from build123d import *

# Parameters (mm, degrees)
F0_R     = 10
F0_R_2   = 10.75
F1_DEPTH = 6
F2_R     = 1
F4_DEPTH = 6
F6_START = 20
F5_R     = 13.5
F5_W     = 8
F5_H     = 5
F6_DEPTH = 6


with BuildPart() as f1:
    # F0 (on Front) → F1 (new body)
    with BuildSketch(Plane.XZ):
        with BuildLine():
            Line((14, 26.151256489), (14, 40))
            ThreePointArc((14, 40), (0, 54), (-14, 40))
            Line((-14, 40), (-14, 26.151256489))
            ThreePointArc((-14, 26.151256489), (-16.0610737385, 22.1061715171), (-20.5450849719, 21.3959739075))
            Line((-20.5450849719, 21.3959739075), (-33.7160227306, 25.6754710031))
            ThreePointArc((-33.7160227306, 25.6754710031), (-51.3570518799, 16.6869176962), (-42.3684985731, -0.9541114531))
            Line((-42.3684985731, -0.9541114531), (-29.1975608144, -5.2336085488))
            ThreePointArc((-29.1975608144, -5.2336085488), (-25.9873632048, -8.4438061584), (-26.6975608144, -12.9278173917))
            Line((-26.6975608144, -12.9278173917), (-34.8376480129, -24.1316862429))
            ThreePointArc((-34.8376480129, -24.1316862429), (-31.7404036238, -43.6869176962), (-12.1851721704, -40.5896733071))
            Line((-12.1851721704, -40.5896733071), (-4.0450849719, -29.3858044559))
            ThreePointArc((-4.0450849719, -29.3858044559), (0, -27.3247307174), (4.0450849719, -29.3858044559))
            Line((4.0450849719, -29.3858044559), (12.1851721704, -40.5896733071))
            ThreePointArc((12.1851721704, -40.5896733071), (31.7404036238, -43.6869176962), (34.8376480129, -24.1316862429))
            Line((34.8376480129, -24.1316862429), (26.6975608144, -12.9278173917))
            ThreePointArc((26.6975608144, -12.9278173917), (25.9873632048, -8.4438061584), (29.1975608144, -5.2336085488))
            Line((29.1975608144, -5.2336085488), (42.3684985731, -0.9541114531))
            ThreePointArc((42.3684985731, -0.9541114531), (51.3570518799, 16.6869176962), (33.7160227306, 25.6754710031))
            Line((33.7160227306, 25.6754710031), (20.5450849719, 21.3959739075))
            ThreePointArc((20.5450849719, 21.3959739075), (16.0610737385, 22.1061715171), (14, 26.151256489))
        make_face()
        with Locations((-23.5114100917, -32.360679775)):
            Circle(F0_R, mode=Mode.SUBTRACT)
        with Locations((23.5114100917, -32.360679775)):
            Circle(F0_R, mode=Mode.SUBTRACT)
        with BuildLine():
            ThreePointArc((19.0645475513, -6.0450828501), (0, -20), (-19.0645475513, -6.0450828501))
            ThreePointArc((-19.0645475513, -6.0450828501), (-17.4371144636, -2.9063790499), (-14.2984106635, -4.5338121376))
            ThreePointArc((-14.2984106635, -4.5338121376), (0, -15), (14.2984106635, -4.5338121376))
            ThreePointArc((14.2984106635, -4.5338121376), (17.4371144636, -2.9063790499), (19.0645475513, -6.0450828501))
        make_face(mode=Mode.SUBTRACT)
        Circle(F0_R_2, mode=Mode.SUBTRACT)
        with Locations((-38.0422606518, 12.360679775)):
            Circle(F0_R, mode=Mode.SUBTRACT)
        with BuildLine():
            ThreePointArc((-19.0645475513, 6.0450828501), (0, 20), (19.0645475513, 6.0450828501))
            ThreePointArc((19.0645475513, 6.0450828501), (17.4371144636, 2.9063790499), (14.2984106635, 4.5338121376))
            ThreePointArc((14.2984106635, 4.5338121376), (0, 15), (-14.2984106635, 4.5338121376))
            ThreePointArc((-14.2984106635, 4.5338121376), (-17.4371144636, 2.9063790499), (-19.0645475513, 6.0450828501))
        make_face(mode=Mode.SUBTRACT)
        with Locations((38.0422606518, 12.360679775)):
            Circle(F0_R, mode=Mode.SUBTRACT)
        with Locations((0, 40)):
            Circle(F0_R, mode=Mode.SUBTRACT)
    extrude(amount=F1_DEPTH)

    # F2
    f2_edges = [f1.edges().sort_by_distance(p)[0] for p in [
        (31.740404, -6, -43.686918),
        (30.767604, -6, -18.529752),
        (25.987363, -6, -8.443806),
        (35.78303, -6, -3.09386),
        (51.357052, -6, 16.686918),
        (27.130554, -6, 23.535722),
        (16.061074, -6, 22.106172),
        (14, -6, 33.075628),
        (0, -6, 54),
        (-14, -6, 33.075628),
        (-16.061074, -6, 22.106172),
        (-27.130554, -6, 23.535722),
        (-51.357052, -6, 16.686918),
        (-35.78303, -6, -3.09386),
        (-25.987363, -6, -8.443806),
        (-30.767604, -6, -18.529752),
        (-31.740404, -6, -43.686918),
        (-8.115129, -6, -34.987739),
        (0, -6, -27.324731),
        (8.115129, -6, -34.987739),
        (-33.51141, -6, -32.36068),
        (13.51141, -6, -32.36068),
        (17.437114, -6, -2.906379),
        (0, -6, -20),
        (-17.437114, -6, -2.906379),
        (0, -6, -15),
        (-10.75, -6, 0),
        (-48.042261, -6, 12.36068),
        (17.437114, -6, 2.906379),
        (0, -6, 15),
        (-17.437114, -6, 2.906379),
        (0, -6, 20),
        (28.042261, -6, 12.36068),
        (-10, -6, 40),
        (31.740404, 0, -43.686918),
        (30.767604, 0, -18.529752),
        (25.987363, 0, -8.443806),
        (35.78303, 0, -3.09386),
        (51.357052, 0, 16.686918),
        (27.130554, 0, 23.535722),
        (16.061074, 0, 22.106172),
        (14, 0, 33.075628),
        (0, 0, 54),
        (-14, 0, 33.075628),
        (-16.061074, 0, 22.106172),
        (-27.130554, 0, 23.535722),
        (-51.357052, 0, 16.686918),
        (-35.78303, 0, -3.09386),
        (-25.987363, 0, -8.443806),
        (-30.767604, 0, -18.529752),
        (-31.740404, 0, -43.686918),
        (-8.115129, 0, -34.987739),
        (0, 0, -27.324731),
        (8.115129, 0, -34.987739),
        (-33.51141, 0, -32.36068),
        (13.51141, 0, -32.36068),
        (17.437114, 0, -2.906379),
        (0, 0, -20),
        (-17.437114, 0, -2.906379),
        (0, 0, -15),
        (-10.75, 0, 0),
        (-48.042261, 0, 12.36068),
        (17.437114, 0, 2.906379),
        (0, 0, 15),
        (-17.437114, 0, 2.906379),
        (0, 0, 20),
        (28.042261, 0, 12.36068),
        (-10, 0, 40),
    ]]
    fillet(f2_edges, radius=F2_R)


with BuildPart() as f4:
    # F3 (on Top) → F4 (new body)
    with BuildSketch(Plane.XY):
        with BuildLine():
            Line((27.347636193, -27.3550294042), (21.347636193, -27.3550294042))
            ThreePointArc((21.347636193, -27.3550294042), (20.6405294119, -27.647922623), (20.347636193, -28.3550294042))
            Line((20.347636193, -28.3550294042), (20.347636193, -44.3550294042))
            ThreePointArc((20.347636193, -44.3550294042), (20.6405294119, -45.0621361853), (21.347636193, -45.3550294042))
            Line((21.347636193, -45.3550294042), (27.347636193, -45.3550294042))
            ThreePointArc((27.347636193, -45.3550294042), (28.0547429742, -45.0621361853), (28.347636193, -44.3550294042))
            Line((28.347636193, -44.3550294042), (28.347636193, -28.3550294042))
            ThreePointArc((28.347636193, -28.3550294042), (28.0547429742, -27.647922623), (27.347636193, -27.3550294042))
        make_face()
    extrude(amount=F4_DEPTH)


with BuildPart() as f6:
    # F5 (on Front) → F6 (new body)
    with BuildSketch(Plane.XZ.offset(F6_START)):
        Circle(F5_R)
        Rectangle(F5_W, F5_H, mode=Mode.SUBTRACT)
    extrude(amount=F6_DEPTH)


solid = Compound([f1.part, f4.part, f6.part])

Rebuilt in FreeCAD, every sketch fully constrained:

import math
import FreeCAD as App
import Part
import Sketcher

V = App.Vector
Q = App.Units.Quantity


def edges_at(feature, points):
    """Names of the edges that pass closest to the given points."""
    edges = feature.Shape.Edges
    near = lambda p: min(range(len(edges)), key=lambda i: edges[i].distToShape(Part.Vertex(*p))[0])
    return sorted({f"Edge{near(p) + 1}" for p in points})


def add_polygon(sketch, points):
    """Adds a closed chain of lines whose ends are joined by coincident constraints."""
    first, n = sketch.GeometryCount, len(points)
    for a, b in zip(points, points[1:] + points[:1]):
        sketch.addGeometry(Part.LineSegment(App.Vector(*a, 0), App.Vector(*b, 0)), False)
    for i in range(n):
        sketch.addConstraint(Sketcher.Constraint("Coincident", first + i, 2, first + (i + 1) % n, 1))

doc = App.newDocument("Part")
body = doc.addObject("PartDesign::Body", "Body")

# Sketch on XZ plane
sketch1 = body.newObject("Sketcher::SketchObject", "Sketch")
sketch1.AttachmentSupport = (doc.getObject("XZ_Plane"), [""])
sketch1.MapMode = "FlatFace"
sketch1.addGeometry(Part.LineSegment(V(14, 26.2, 0), V(14, 40, 0)), False)
sketch1.addGeometry(Part.ArcOfCircle(Part.Circle(V(0, 40, 0), V(0, 0, 1), 14), math.radians(0), math.radians(180)), False)
sketch1.addGeometry(Part.LineSegment(V(-14, 40, 0), V(-14, 26.2, 0)), False)
sketch1.addGeometry(Part.ArcOfCircle(Part.Circle(V(-19, 26.2, 0), V(0, 0, 1), 5), math.radians(-108), math.radians(0)), False)
sketch1.addGeometry(Part.LineSegment(V(-20.5, 21.4, 0), V(-33.7, 25.7, 0)), False)
sketch1.addGeometry(Part.ArcOfCircle(Part.Circle(V(-38, 12.4, 0), V(0, 0, 1), 14), math.radians(72), math.radians(252)), False)
sketch1.addGeometry(Part.LineSegment(V(-42.4, -1, 0), V(-29.2, -5.2, 0)), False)
sketch1.addGeometry(Part.ArcOfCircle(Part.Circle(V(-30.7, -10, 0), V(0, 0, 1), 5), math.radians(-36), math.radians(72)), False)
sketch1.addGeometry(Part.LineSegment(V(-26.7, -12.9, 0), V(-34.8, -24.1, 0)), False)
sketch1.addGeometry(Part.ArcOfCircle(Part.Circle(V(-23.5, -32.4, 0), V(0, 0, 1), 14), math.radians(144), math.radians(324)), False)
sketch1.addGeometry(Part.LineSegment(V(-12.2, -40.6, 0), V(-4, -29.4, 0)), False)
sketch1.addGeometry(Part.ArcOfCircle(Part.Circle(V(0, -32.3, 0), V(0, 0, 1), 5), math.radians(36), math.radians(144)), False)
sketch1.addGeometry(Part.LineSegment(V(4, -29.4, 0), V(12.2, -40.6, 0)), False)
sketch1.addGeometry(Part.ArcOfCircle(Part.Circle(V(23.5, -32.4, 0), V(0, 0, 1), 14), math.radians(-144), math.radians(36)), False)
sketch1.addGeometry(Part.LineSegment(V(34.8, -24.1, 0), V(26.7, -12.9, 0)), False)
sketch1.addGeometry(Part.ArcOfCircle(Part.Circle(V(30.7, -10, 0), V(0, 0, 1), 5), math.radians(108), math.radians(216)), False)
sketch1.addGeometry(Part.LineSegment(V(29.2, -5.2, 0), V(42.4, -1, 0)), False)
sketch1.addGeometry(Part.ArcOfCircle(Part.Circle(V(38, 12.4, 0), V(0, 0, 1), 14), math.radians(-72), math.radians(108)), False)
sketch1.addGeometry(Part.LineSegment(V(33.7, 25.7, 0), V(20.5, 21.4, 0)), False)
sketch1.addGeometry(Part.ArcOfCircle(Part.Circle(V(19, 26.2, 0), V(0, 0, 1), 5), math.radians(180), math.radians(288)), False)
sketch1.addGeometry(Part.Circle(V(-23.5, -32.4, 0), V(0, 0, 1), 10), False)
sketch1.addGeometry(Part.Circle(V(23.5, -32.4, 0), V(0, 0, 1), 10), False)
sketch1.addGeometry(Part.ArcOfCircle(Part.Circle(V(16.7, -5.3, 0), V(0, 0, 1), 2.5), math.radians(-18), math.radians(162)), False)
sketch1.addGeometry(Part.ArcOfCircle(Part.Circle(V(0, 0, 0), V(0, 0, 1), 20), math.radians(-162), math.radians(-18)), False)
sketch1.addGeometry(Part.ArcOfCircle(Part.Circle(V(-16.7, -5.3, 0), V(0, 0, 1), 2.5), math.radians(18), math.radians(198)), False)
sketch1.addGeometry(Part.ArcOfCircle(Part.Circle(V(0, 0, 0), V(0, 0, 1), 15), math.radians(-162), math.radians(-18)), False)
sketch1.addGeometry(Part.Circle(V(0, 0, 0), V(0, 0, 1), 10.8), False)
sketch1.addGeometry(Part.Circle(V(-38, 12.4, 0), V(0, 0, 1), 10), False)
sketch1.addGeometry(Part.ArcOfCircle(Part.Circle(V(-16.7, 5.3, 0), V(0, 0, 1), 2.5), math.radians(162), math.radians(342)), False)
sketch1.addGeometry(Part.ArcOfCircle(Part.Circle(V(0, 0, 0), V(0, 0, 1), 20), math.radians(18), math.radians(162)), False)
sketch1.addGeometry(Part.ArcOfCircle(Part.Circle(V(16.7, 5.3, 0), V(0, 0, 1), 2.5), math.radians(-162), math.radians(18)), False)
sketch1.addGeometry(Part.ArcOfCircle(Part.Circle(V(0, 0, 0), V(0, 0, 1), 15), math.radians(18), math.radians(162)), False)
sketch1.addGeometry(Part.Circle(V(38, 12.4, 0), V(0, 0, 1), 10), False)
sketch1.addGeometry(Part.Circle(V(0, 40, 0), V(0, 0, 1), 10), False)
sketch1.addConstraint(Sketcher.Constraint("Tangent", 0, 2, 1, 1))
sketch1.addConstraint(Sketcher.Constraint("Tangent", 1, 2, 2, 1))
sketch1.addConstraint(Sketcher.Constraint("Tangent", 2, 2, 3, 2))
sketch1.addConstraint(Sketcher.Constraint("Tangent", 3, 1, 4, 1))
sketch1.addConstraint(Sketcher.Constraint("Tangent", 4, 2, 5, 1))
sketch1.addConstraint(Sketcher.Constraint("Tangent", 5, 2, 6, 1))
sketch1.addConstraint(Sketcher.Constraint("Tangent", 6, 2, 7, 2))
sketch1.addConstraint(Sketcher.Constraint("Tangent", 7, 1, 8, 1))
sketch1.addConstraint(Sketcher.Constraint("Tangent", 8, 2, 9, 1))
sketch1.addConstraint(Sketcher.Constraint("Tangent", 9, 2, 10, 1))
sketch1.addConstraint(Sketcher.Constraint("Tangent", 10, 2, 11, 2))
sketch1.addConstraint(Sketcher.Constraint("Tangent", 11, 1, 12, 1))
sketch1.addConstraint(Sketcher.Constraint("Tangent", 12, 2, 13, 1))
sketch1.addConstraint(Sketcher.Constraint("Tangent", 13, 2, 14, 1))
sketch1.addConstraint(Sketcher.Constraint("Tangent", 14, 2, 15, 2))
sketch1.addConstraint(Sketcher.Constraint("Tangent", 15, 1, 16, 1))
sketch1.addConstraint(Sketcher.Constraint("Tangent", 16, 2, 17, 1))
sketch1.addConstraint(Sketcher.Constraint("Tangent", 17, 2, 18, 1))
sketch1.addConstraint(Sketcher.Constraint("Tangent", 18, 2, 19, 2))
sketch1.addConstraint(Sketcher.Constraint("Tangent", 19, 1, 0, 1))
sketch1.addConstraint(Sketcher.Constraint("Tangent", 22, 1, 23, 2))
sketch1.addConstraint(Sketcher.Constraint("Tangent", 23, 1, 24, 2))
sketch1.addConstraint(Sketcher.Constraint("Tangent", 24, 1, 25, 1))
sketch1.addConstraint(Sketcher.Constraint("Tangent", 25, 2, 22, 2))
sketch1.addConstraint(Sketcher.Constraint("Tangent", 28, 1, 29, 2))
sketch1.addConstraint(Sketcher.Constraint("Tangent", 29, 1, 30, 2))
sketch1.addConstraint(Sketcher.Constraint("Tangent", 30, 1, 31, 1))
sketch1.addConstraint(Sketcher.Constraint("Tangent", 31, 2, 28, 2))
sketch1.addConstraint(Sketcher.Constraint("Vertical", 0))
sketch1.addConstraint(Sketcher.Constraint("Vertical", 2))
sketch1.addConstraint(Sketcher.Constraint("Coincident", 23, 3, -1, 1))
sketch1.addConstraint(Sketcher.Constraint("Coincident", 25, 3, -1, 1))
sketch1.addConstraint(Sketcher.Constraint("Coincident", 26, 3, -1, 1))
sketch1.addConstraint(Sketcher.Constraint("Coincident", 29, 3, -1, 1))
sketch1.addConstraint(Sketcher.Constraint("Coincident", 31, 3, -1, 1))
sketch1.addConstraint(Sketcher.Constraint("Coincident", 20, 3, 9, 3))
sketch1.addConstraint(Sketcher.Constraint("Coincident", 21, 3, 13, 3))
sketch1.addConstraint(Sketcher.Constraint("Coincident", 27, 3, 5, 3))
sketch1.addConstraint(Sketcher.Constraint("Coincident", 32, 3, 17, 3))
sketch1.addConstraint(Sketcher.Constraint("Coincident", 33, 3, 1, 3))
sketch1.addConstraint(Sketcher.Constraint("Equal", 1, 5))
sketch1.addConstraint(Sketcher.Constraint("Equal", 3, 7))
sketch1.addConstraint(Sketcher.Constraint("Equal", 5, 9))
sketch1.addConstraint(Sketcher.Constraint("Equal", 7, 11))
sketch1.addConstraint(Sketcher.Constraint("Equal", 9, 13))
sketch1.addConstraint(Sketcher.Constraint("Equal", 11, 15))
sketch1.addConstraint(Sketcher.Constraint("Equal", 13, 17))
sketch1.addConstraint(Sketcher.Constraint("Equal", 15, 19))
sketch1.addConstraint(Sketcher.Constraint("Equal", 20, 21))
sketch1.addConstraint(Sketcher.Constraint("Equal", 21, 27))
sketch1.addConstraint(Sketcher.Constraint("Equal", 24, 28))
sketch1.addConstraint(Sketcher.Constraint("Equal", 23, 29))
sketch1.addConstraint(Sketcher.Constraint("Equal", 27, 32))
sketch1.addConstraint(Sketcher.Constraint("Equal", 32, 33))
sketch1.addConstraint(Sketcher.Constraint("Symmetric", 9, 3, 13, 3, -2))
sketch1.addConstraint(Sketcher.Constraint("Symmetric", 7, 3, 15, 3, -2))
sketch1.addConstraint(Sketcher.Constraint("Symmetric", 5, 3, 17, 3, -2))
sketch1.addConstraint(Sketcher.Constraint("Symmetric", 3, 3, 19, 3, -2))
sketch1.addConstraint(Sketcher.Constraint("PointOnObject", 11, 3, -2))
sketch1.addConstraint(Sketcher.Constraint("Parallel", 4, 6))
sketch1.addConstraint(Sketcher.Constraint("Parallel", 8, 10))
sketch1.addConstraint(Sketcher.Constraint("Horizontal", 22, 3, 24, 3))
sketch1.addConstraint(Sketcher.Constraint("Horizontal", 28, 3, 30, 3))
sketch1.addConstraint(Sketcher.Constraint("Vertical", 24, 3, 28, 3))
sketch1.addConstraint(Sketcher.Constraint("Equal", 4, 6))
sketch1.addConstraint(Sketcher.Constraint("Equal", 6, 8))
sketch1.addConstraint(Sketcher.Constraint("Equal", 8, 10))
sketch1.addConstraint(Sketcher.Constraint("Diameter", 20, Q("20 mm")))
sketch1.addConstraint(Sketcher.Constraint("Radius", 1, Q("14 mm")))
sketch1.addConstraint(Sketcher.Constraint("Radius", 3, Q("5 mm")))
sketch1.addConstraint(Sketcher.Constraint("Radius", 23, Q("20 mm")))
sketch1.addConstraint(Sketcher.Constraint("Radius", 25, Q("15 mm")))
sketch1.addConstraint(Sketcher.Constraint("Diameter", 26, Q("21.5 mm")))
sketch1.addConstraint(Sketcher.Constraint("Angle", 4, Q("162 deg")))
sketch1.addConstraint(Sketcher.Constraint("DistanceY", -1, 1, 1, 3, Q("40 mm")))
sketch1.addConstraint(Sketcher.Constraint("DistanceX", 5, 2, -1, 1, Q("42.368499 mm")))
sketch1.addConstraint(Sketcher.Constraint("DistanceX", 22, 1, 15, 3, Q("11.678098 mm")))
sketch1.addConstraint(Sketcher.Constraint("DistanceY", 0, 1, 0, 2, Q("13.848744 mm")))
pad1 = body.newObject("PartDesign::Pad", "Pad")
pad1.Profile = sketch1
pad1.Length = 6
doc.recompute()

fillet = body.newObject("PartDesign::Fillet", "Fillet")
fillet.Base = (pad1, edges_at(pad1, [
    (31.74, -6, -43.687),
    (30.768, -6, -18.53),
    (25.987, -6, -8.444),
    (35.783, -6, -3.094),
    (51.357, -6, 16.687),
    (27.131, -6, 23.536),
    (16.061, -6, 22.106),
    (14, -6, 33.076),
    (0, -6, 54),
    (-14, -6, 33.076),
    (-16.061, -6, 22.106),
    (-27.131, -6, 23.536),
    (-51.357, -6, 16.687),
    (-35.783, -6, -3.094),
    (-25.987, -6, -8.444),
    (-30.768, -6, -18.53),
    (-31.74, -6, -43.687),
    (-8.115, -6, -34.988),
    (0, -6, -27.325),
    (8.115, -6, -34.988),
    (-33.511, -6, -32.361),
    (13.511, -6, -32.361),
    (17.437, -6, -2.906),
    (0, -6, -20),
    (-17.437, -6, -2.906),
    (0, -6, -15),
    (-10.75, -6, 0),
    (-48.042, -6, 12.361),
    (17.437, -6, 2.906),
    (0, -6, 15),
    (-17.437, -6, 2.906),
    (0, -6, 20),
    (28.042, -6, 12.361),
    (-10, -6, 40),
    (31.74, 0, -43.687),
    (30.768, 0, -18.53),
    (25.987, 0, -8.444),
    (35.783, 0, -3.094),
    (51.357, 0, 16.687),
    (27.131, 0, 23.536),
    (16.061, 0, 22.106),
    (14, 0, 33.076),
    (0, 0, 54),
    (-14, 0, 33.076),
    (-16.061, 0, 22.106),
    (-27.131, 0, 23.536),
    (-51.357, 0, 16.687),
    (-35.783, 0, -3.094),
    (-25.987, 0, -8.444),
    (-30.768, 0, -18.53),
    (-31.74, 0, -43.687),
    (-8.115, 0, -34.988),
    (0, 0, -27.325),
    (8.115, 0, -34.988),
    (-33.511, 0, -32.361),
    (13.511, 0, -32.361),
    (17.437, 0, -2.906),
    (0, 0, -20),
    (-17.437, 0, -2.906),
    (0, 0, -15),
    (-10.75, 0, 0),
    (-48.042, 0, 12.361),
    (17.437, 0, 2.906),
    (0, 0, 15),
    (-17.437, 0, 2.906),
    (0, 0, 20),
    (28.042, 0, 12.361),
    (-10, 0, 40),
]))
fillet.Radius = 1
body2 = doc.addObject("PartDesign::Body", "Body001")

# Sketch on XY plane
sketch2 = body2.newObject("Sketcher::SketchObject", "Sketch001")
sketch2.AttachmentSupport = (doc.getObject("XY_Plane001"), [""])
sketch2.MapMode = "FlatFace"
sketch2.addGeometry(Part.LineSegment(V(27.3, -27.4, 0), V(21.3, -27.4, 0)), False)
sketch2.addGeometry(Part.ArcOfCircle(Part.Circle(V(21.3, -28.4, 0), V(0, 0, 1), 1), math.radians(90), math.radians(180)), False)
sketch2.addGeometry(Part.LineSegment(V(20.3, -28.4, 0), V(20.3, -44.4, 0)), False)
sketch2.addGeometry(Part.ArcOfCircle(Part.Circle(V(21.3, -44.4, 0), V(0, 0, 1), 1), math.radians(180), math.radians(270)), False)
sketch2.addGeometry(Part.LineSegment(V(21.3, -45.4, 0), V(27.3, -45.4, 0)), False)
sketch2.addGeometry(Part.ArcOfCircle(Part.Circle(V(27.3, -44.4, 0), V(0, 0, 1), 1), math.radians(-90), math.radians(0)), False)
sketch2.addGeometry(Part.LineSegment(V(28.3, -44.4, 0), V(28.3, -28.4, 0)), False)
sketch2.addGeometry(Part.ArcOfCircle(Part.Circle(V(27.3, -28.4, 0), V(0, 0, 1), 1), math.radians(0), math.radians(90)), False)
sketch2.addConstraint(Sketcher.Constraint("Tangent", 0, 2, 1, 1))
sketch2.addConstraint(Sketcher.Constraint("Tangent", 1, 2, 2, 1))
sketch2.addConstraint(Sketcher.Constraint("Tangent", 2, 2, 3, 1))
sketch2.addConstraint(Sketcher.Constraint("Tangent", 3, 2, 4, 1))
sketch2.addConstraint(Sketcher.Constraint("Tangent", 4, 2, 5, 1))
sketch2.addConstraint(Sketcher.Constraint("Tangent", 5, 2, 6, 1))
sketch2.addConstraint(Sketcher.Constraint("Tangent", 6, 2, 7, 1))
sketch2.addConstraint(Sketcher.Constraint("Tangent", 7, 2, 0, 1))
sketch2.addConstraint(Sketcher.Constraint("Horizontal", 0))
sketch2.addConstraint(Sketcher.Constraint("Vertical", 2))
sketch2.addConstraint(Sketcher.Constraint("Horizontal", 4))
sketch2.addConstraint(Sketcher.Constraint("Vertical", 6))
sketch2.addConstraint(Sketcher.Constraint("Equal", 1, 3))
sketch2.addConstraint(Sketcher.Constraint("Equal", 3, 5))
sketch2.addConstraint(Sketcher.Constraint("Equal", 5, 7))
sketch2.addConstraint(Sketcher.Constraint("Radius", 1, Q("1 mm")))
sketch2.addConstraint(Sketcher.Constraint("DistanceX", 0, 2, 0, 1, Q("6 mm")))
sketch2.addConstraint(Sketcher.Constraint("DistanceY", 2, 2, 2, 1, Q("16 mm")))
sketch2.addConstraint(Sketcher.Constraint("DistanceY", 1, 3, -1, 1, Q("28.355029 mm")))
sketch2.addConstraint(Sketcher.Constraint("DistanceX", -1, 1, 1, 3, Q("21.347636 mm")))
pad2 = body2.newObject("PartDesign::Pad", "Pad001")
pad2.Profile = sketch2
pad2.Length = 6
body3 = doc.addObject("PartDesign::Body", "Body002")

# Sketch on XZ plane
sketch3 = body3.newObject("Sketcher::SketchObject", "Sketch002")
sketch3.AttachmentSupport = (doc.getObject("XZ_Plane002"), [""])
sketch3.MapMode = "FlatFace"
sketch3.AttachmentOffset = App.Placement(V(0, 0, 20), App.Rotation())
sketch3.addGeometry(Part.Circle(V(0, 0, 0), V(0, 0, 1), 14), False)  # 0
add_polygon(sketch3, [(4, -2), (-4, -2), (-4, 2), (4, 2)])  # lines 1-4
sketch3.addConstraint(Sketcher.Constraint("Horizontal", 1))
sketch3.addConstraint(Sketcher.Constraint("Vertical", 2))
sketch3.addConstraint(Sketcher.Constraint("Horizontal", 3))
sketch3.addConstraint(Sketcher.Constraint("Vertical", 4))
sketch3.addConstraint(Sketcher.Constraint("Coincident", 0, 3, -1, 1))
sketch3.addConstraint(Sketcher.Constraint("Symmetric", 1, 2, 3, 2, -1, 1))
sketch3.addConstraint(Sketcher.Constraint("Diameter", 0, Q("27 mm")))
sketch3.addConstraint(Sketcher.Constraint("DistanceX", 1, 2, 1, 1, Q("8 mm")))
sketch3.addConstraint(Sketcher.Constraint("DistanceY", 2, 1, 2, 2, Q("5 mm")))
pad3 = body3.newObject("PartDesign::Pad", "Pad002")
pad3.Profile = sketch3
pad3.Length = 6

doc.recompute()
